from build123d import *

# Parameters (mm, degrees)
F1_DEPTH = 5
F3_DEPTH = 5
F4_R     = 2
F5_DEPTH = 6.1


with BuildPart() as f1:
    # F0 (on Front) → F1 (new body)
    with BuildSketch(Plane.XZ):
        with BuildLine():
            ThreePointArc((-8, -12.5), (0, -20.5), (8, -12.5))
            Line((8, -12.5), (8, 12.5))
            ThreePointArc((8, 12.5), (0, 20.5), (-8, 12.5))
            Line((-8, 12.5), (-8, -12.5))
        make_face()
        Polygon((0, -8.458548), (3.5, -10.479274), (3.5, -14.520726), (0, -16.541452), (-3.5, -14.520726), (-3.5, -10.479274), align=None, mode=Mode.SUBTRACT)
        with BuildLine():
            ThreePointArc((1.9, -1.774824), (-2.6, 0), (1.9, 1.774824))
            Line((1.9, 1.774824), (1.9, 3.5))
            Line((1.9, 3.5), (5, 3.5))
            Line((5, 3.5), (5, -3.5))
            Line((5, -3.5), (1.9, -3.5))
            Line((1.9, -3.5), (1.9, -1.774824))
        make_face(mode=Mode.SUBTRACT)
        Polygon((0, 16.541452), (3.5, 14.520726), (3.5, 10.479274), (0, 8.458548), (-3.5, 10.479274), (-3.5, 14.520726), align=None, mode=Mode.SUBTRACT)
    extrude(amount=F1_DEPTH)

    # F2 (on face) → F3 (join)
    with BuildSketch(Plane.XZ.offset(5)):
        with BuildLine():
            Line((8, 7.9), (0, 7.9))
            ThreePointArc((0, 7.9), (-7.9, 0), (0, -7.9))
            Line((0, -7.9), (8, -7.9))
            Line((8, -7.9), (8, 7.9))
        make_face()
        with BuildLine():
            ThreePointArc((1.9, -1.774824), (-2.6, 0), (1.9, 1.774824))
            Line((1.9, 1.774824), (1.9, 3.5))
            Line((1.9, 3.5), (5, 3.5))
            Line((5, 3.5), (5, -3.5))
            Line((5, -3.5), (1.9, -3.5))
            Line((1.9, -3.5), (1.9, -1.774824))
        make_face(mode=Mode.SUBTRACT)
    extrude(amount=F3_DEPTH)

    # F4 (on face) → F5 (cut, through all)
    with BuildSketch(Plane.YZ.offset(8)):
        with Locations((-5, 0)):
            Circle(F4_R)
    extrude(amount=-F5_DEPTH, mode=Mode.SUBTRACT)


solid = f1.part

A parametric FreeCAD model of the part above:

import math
import FreeCAD as App
import Part
import Sketcher
Q = App.Units.Quantity

doc = App.newDocument("Part")
body = doc.addObject("PartDesign::Body", "Body")

sketch1 = body.newObject("Sketcher::SketchObject", "Sketch")
sketch1.AttachmentSupport = (doc.getObject("XZ_Plane"), [""])
sketch1.MapMode = "FlatFace"
sketch1.addGeometry(Part.ArcOfCircle(Part.Circle(App.Vector(0, -12.5, 0), App.Vector(0, 0, 1), 8), math.radians(180), math.radians(360)), False)
sketch1.addGeometry(Part.LineSegment(App.Vector(8, -12.5, 0), App.Vector(8, 12.5, 0)), False)
sketch1.addGeometry(Part.ArcOfCircle(Part.Circle(App.Vector(0, 12.5, 0), App.Vector(0, 0, 1), 8), math.radians(0), math.radians(180)), False)
sketch1.addGeometry(Part.LineSegment(App.Vector(-8, 12.5, 0), App.Vector(-8, -12.5, 0)), False)
sketch1.addGeometry(Part.LineSegment(App.Vector(-3.5, -10.479274, 0), App.Vector(0, -8.458548, 0)), False)
sketch1.addGeometry(Part.LineSegment(App.Vector(0, -8.458548, 0), App.Vector(3.5, -10.479274, 0)), False)
sketch1.addGeometry(Part.LineSegment(App.Vector(3.5, -10.479274, 0), App.Vector(3.5, -14.520726, 0)), False)
sketch1.addGeometry(Part.LineSegment(App.Vector(3.5, -14.520726, 0), App.Vector(0, -16.541452, 0)), False)
sketch1.addGeometry(Part.LineSegment(App.Vector(0, -16.541452, 0), App.Vector(-3.5, -14.520726, 0)), False)
sketch1.addGeometry(Part.LineSegment(App.Vector(-3.5, -14.520726, 0), App.Vector(-3.5, -10.479274, 0)), False)
sketch1.addGeometry(Part.LineSegment(App.Vector(-3.5, 14.520726, 0), App.Vector(0, 16.541452, 0)), False)
sketch1.addGeometry(Part.LineSegment(App.Vector(0, 16.541452, 0), App.Vector(3.5, 14.520726, 0)), False)
sketch1.addGeometry(Part.LineSegment(App.Vector(3.5, 14.520726, 0), App.Vector(3.5, 10.479274, 0)), False)
sketch1.addGeometry(Part.LineSegment(App.Vector(3.5, 10.479274, 0), App.Vector(0, 8.458548, 0)), False)
sketch1.addGeometry(Part.LineSegment(App.Vector(0, 8.458548, 0), App.Vector(-3.5, 10.479274, 0)), False)
sketch1.addGeometry(Part.LineSegment(App.Vector(-3.5, 10.479274, 0), App.Vector(-3.5, 14.520726, 0)), False)
sketch1.addGeometry(Part.LineSegment(App.Vector(1.9, -3.5, 0), App.Vector(1.9, -1.774824, 0)), False)
sketch1.addGeometry(Part.ArcOfCircle(Part.Circle(App.Vector(0, 0, 0), App.Vector(0, 0, 1), 2.6), math.radians(43.049081), math.radians(316.950919)), False)
sketch1.addGeometry(Part.LineSegment(App.Vector(1.9, 1.774824, 0), App.Vector(1.9, 3.5, 0)), False)
sketch1.addGeometry(Part.LineSegment(App.Vector(1.9, 3.5, 0), App.Vector(5, 3.5, 0)), False)
sketch1.addGeometry(Part.LineSegment(App.Vector(5, 3.5, 0), App.Vector(5, -3.5, 0)), False)
sketch1.addGeometry(Part.LineSegment(App.Vector(5, -3.5, 0), App.Vector(1.9, -3.5, 0)), False)
sketch1.addConstraint(Sketcher.Constraint("Tangent", 0, 2, 1, 1))
sketch1.addConstraint(Sketcher.Constraint("Tangent", 1, 2, 2, 1))
sketch1.addConstraint(Sketcher.Constraint("Tangent", 2, 2, 3, 1))
sketch1.addConstraint(Sketcher.Constraint("Tangent", 3, 2, 0, 1))
sketch1.addConstraint(Sketcher.Constraint("Coincident", 4, 2, 5, 1))
sketch1.addConstraint(Sketcher.Constraint("Coincident", 5, 2, 6, 1))
sketch1.addConstraint(Sketcher.Constraint("Coincident", 6, 2, 7, 1))
sketch1.addConstraint(Sketcher.Constraint("Coincident", 7, 2, 8, 1))
sketch1.addConstraint(Sketcher.Constraint("Coincident", 8, 2, 9, 1))
sketch1.addConstraint(Sketcher.Constraint("Coincident", 9, 2, 4, 1))
sketch1.addConstraint(Sketcher.Constraint("Coincident", 10, 2, 11, 1))
sketch1.addConstraint(Sketcher.Constraint("Coincident", 11, 2, 12, 1))
sketch1.addConstraint(Sketcher.Constraint("Coincident", 12, 2, 13, 1))
sketch1.addConstraint(Sketcher.Constraint("Coincident", 13, 2, 14, 1))
sketch1.addConstraint(Sketcher.Constraint("Coincident", 14, 2, 15, 1))
sketch1.addConstraint(Sketcher.Constraint("Coincident", 15, 2, 10, 1))
sketch1.addConstraint(Sketcher.Constraint("Coincident", 16, 2, 17, 2))
sketch1.addConstraint(Sketcher.Constraint("Coincident", 17, 1, 18, 1))
sketch1.addConstraint(Sketcher.Constraint("Coincident", 18, 2, 19, 1))
sketch1.addConstraint(Sketcher.Constraint("Coincident", 19, 2, 20, 1))
sketch1.addConstraint(Sketcher.Constraint("Coincident", 20, 2, 21, 1))
sketch1.addConstraint(Sketcher.Constraint("Coincident", 21, 2, 16, 1))
sketch1.addConstraint(Sketcher.Constraint("Vertical", 1))
sketch1.addConstraint(Sketcher.Constraint("Vertical", 3))
sketch1.addConstraint(Sketcher.Constraint("Vertical", 6))
sketch1.addConstraint(Sketcher.Constraint("Vertical", 9))
sketch1.addConstraint(Sketcher.Constraint("Vertical", 12))
sketch1.addConstraint(Sketcher.Constraint("Vertical", 15))
sketch1.addConstraint(Sketcher.Constraint("Vertical", 16))
sketch1.addConstraint(Sketcher.Constraint("Vertical", 18))
sketch1.addConstraint(Sketcher.Constraint("Horizontal", 19))
sketch1.addConstraint(Sketcher.Constraint("Vertical", 20))
sketch1.addConstraint(Sketcher.Constraint("Horizontal", 21))
sketch1.addConstraint(Sketcher.Constraint("Coincident", 17, 3, -1, 1))
sketch1.addConstraint(Sketcher.Constraint("Symmetric", 0, 3, 2, 3, -1, 1))
sketch1.addConstraint(Sketcher.Constraint("Symmetric", 7, 2, 10, 2, -1, 1))
sketch1.addConstraint(Sketcher.Constraint("Symmetric", 8, 2, 11, 2, -1, 1))
sketch1.addConstraint(Sketcher.Constraint("Symmetric", 4, 2, 13, 2, -1, 1))
sketch1.addConstraint(Sketcher.Constraint("Symmetric", 5, 2, 14, 2, -1, 1))
sketch1.addConstraint(Sketcher.Constraint("Symmetric", 6, 2, 8, 2, -2))
sketch1.addConstraint(Sketcher.Constraint("Symmetric", 18, 2, 21, 2, -1))
sketch1.addConstraint(Sketcher.Constraint("PointOnObject", 4, 2, -2))
sketch1.addConstraint(Sketcher.Constraint("PointOnObject", 7, 2, -2))
sketch1.addConstraint(Sketcher.Constraint("Parallel", 4, 7))
sketch1.addConstraint(Sketcher.Constraint("Parallel", 5, 8))
sketch1.addConstraint(Sketcher.Constraint("Parallel", 7, 10))
sketch1.addConstraint(Sketcher.Constraint("Parallel", 10, 13))
sketch1.addConstraint(Sketcher.Constraint("Radius", 0, 8.0))
sketch1.addConstraint(Sketcher.Constraint("Radius", 17, 2.6))
sketch1.addConstraint(Sketcher.Constraint("DistanceY", 1, 1, 1, 2, 25.0))
sketch1.addConstraint(Sketcher.Constraint("DistanceY", 20, 2, 20, 1, 7.0))
sketch1.addConstraint(Sketcher.Constraint("Angle", 4, Q("30.000001 deg")))
sketch1.addConstraint(Sketcher.Constraint("DistanceX", 19, 1, 19, 2, 3.1))
sketch1.addConstraint(Sketcher.Constraint("DistanceX", -1, 1, 19, 2, 5.0))
sketch1.addConstraint(Sketcher.Constraint("DistanceX", 8, 2, 6, 2, 7.0))
sketch1.addConstraint(Sketcher.Constraint("DistanceY", 4, 2, 10, 2, 25.0))
sketch1.addConstraint(Sketcher.Constraint("DistanceY", 6, 2, 6, 1, 4.041452))
pad1 = body.newObject("PartDesign::Pad", "Pad")
pad1.Profile = sketch1
pad1.Length = 5

sketch2 = body.newObject("Sketcher::SketchObject", "Sketch001")
sketch2.AttachmentSupport = (doc.getObject("XZ_Plane"), [""])
sketch2.MapMode = "FlatFace"
sketch2.AttachmentOffset = App.Placement(App.Vector(0, 0, 5), App.Rotation())
sketch2.addGeometry(Part.LineSegment(App.Vector(8, 7.9, 0), App.Vector(0, 7.9, 0)), False)
sketch2.addGeometry(Part.ArcOfCircle(Part.Circle(App.Vector(0, 0, 0), App.Vector(0, 0, 1), 7.9), math.radians(90), math.radians(270)), False)
sketch2.addGeometry(Part.LineSegment(App.Vector(0, -7.9, 0), App.Vector(8, -7.9, 0)), False)
sketch2.addGeometry(Part.LineSegment(App.Vector(8, -7.9, 0), App.Vector(8, 7.9, 0)), False)
sketch2.addGeometry(Part.LineSegment(App.Vector(1.9, -3.5, 0), App.Vector(1.9, -1.774824, 0)), False)
sketch2.addGeometry(Part.ArcOfCircle(Part.Circle(App.Vector(0, 0, 0), App.Vector(0, 0, 1), 2.6), math.radians(43.049081), math.radians(316.950919)), False)
sketch2.addGeometry(Part.LineSegment(App.Vector(1.9, 1.774824, 0), App.Vector(1.9, 3.5, 0)), False)
sketch2.addGeometry(Part.LineSegment(App.Vector(1.9, 3.5, 0), App.Vector(5, 3.5, 0)), False)
sketch2.addGeometry(Part.LineSegment(App.Vector(5, 3.5, 0), App.Vector(5, -3.5, 0)), False)
sketch2.addGeometry(Part.LineSegment(App.Vector(5, -3.5, 0), App.Vector(1.9, -3.5, 0)), False)
sketch2.addConstraint(Sketcher.Constraint("Tangent", 0, 2, 1, 1))
sketch2.addConstraint(Sketcher.Constraint("Tangent", 1, 2, 2, 1))
sketch2.addConstraint(Sketcher.Constraint("Coincident", 2, 2, 3, 1))
sketch2.addConstraint(Sketcher.Constraint("Coincident", 3, 2, 0, 1))
sketch2.addConstraint(Sketcher.Constraint("Coincident", 4, 2, 5, 2))
sketch2.addConstraint(Sketcher.Constraint("Coincident", 5, 1, 6, 1))
sketch2.addConstraint(Sketcher.Constraint("Coincident", 6, 2, 7, 1))
sketch2.addConstraint(Sketcher.Constraint("Coincident", 7, 2, 8, 1))
sketch2.addConstraint(Sketcher.Constraint("Coincident", 8, 2, 9, 1))
sketch2.addConstraint(Sketcher.Constraint("Coincident", 9, 2, 4, 1))
sketch2.addConstraint(Sketcher.Constraint("Horizontal", 0))
sketch2.addConstraint(Sketcher.Constraint("Horizontal", 2))
sketch2.addConstraint(Sketcher.Constraint("Vertical", 3))
sketch2.addConstraint(Sketcher.Constraint("Vertical", 4))
sketch2.addConstraint(Sketcher.Constraint("Vertical", 6))
sketch2.addConstraint(Sketcher.Constraint("Horizontal", 7))
sketch2.addConstraint(Sketcher.Constraint("Vertical", 8))
sketch2.addConstraint(Sketcher.Constraint("Horizontal", 9))
sketch2.addConstraint(Sketcher.Constraint("Coincident", 1, 3, -1, 1))
sketch2.addConstraint(Sketcher.Constraint("Coincident", 5, 3, -1, 1))
sketch2.addConstraint(Sketcher.Constraint("Symmetric", 6, 2, 9, 2, -1))
sketch2.addConstraint(Sketcher.Constraint("Radius", 1, 7.9))
sketch2.addConstraint(Sketcher.Constraint("Radius", 5, 2.6))
sketch2.addConstraint(Sketcher.Constraint("DistanceX", 0, 2, 0, 1, 8.0))
sketch2.addConstraint(Sketcher.Constraint("DistanceY", 8, 2, 8, 1, 7.0))
sketch2.addConstraint(Sketcher.Constraint("DistanceX", 7, 1, 7, 2, 3.1))
sketch2.addConstraint(Sketcher.Constraint("DistanceX", -1, 1, 7, 2, 5.0))
pad2 = body.newObject("PartDesign::Pad", "Pad001")
pad2.Profile = sketch2
pad2.Length = 5

sketch3 = body.newObject("Sketcher::SketchObject", "Sketch002")
sketch3.AttachmentSupport = (doc.getObject("YZ_Plane"), [""])
sketch3.MapMode = "FlatFace"
sketch3.AttachmentOffset = App.Placement(App.Vector(0, 0, 8), App.Rotation())
sketch3.addGeometry(Part.Circle(App.Vector(-5, 0, 0), App.Vector(0, 0, 1), 2), False)
sketch3.addConstraint(Sketcher.Constraint("PointOnObject", 0, 3, -1))
sketch3.addConstraint(Sketcher.Constraint("Diameter", 0, 4.0))
sketch3.addConstraint(Sketcher.Constraint("DistanceX", 0, 3, -1, 1, 5.0))
pocket1 = body.newObject("PartDesign::Pocket", "Pocket")
pocket1.Profile = sketch3
pocket1.Length = 6.1

doc.recompute()
